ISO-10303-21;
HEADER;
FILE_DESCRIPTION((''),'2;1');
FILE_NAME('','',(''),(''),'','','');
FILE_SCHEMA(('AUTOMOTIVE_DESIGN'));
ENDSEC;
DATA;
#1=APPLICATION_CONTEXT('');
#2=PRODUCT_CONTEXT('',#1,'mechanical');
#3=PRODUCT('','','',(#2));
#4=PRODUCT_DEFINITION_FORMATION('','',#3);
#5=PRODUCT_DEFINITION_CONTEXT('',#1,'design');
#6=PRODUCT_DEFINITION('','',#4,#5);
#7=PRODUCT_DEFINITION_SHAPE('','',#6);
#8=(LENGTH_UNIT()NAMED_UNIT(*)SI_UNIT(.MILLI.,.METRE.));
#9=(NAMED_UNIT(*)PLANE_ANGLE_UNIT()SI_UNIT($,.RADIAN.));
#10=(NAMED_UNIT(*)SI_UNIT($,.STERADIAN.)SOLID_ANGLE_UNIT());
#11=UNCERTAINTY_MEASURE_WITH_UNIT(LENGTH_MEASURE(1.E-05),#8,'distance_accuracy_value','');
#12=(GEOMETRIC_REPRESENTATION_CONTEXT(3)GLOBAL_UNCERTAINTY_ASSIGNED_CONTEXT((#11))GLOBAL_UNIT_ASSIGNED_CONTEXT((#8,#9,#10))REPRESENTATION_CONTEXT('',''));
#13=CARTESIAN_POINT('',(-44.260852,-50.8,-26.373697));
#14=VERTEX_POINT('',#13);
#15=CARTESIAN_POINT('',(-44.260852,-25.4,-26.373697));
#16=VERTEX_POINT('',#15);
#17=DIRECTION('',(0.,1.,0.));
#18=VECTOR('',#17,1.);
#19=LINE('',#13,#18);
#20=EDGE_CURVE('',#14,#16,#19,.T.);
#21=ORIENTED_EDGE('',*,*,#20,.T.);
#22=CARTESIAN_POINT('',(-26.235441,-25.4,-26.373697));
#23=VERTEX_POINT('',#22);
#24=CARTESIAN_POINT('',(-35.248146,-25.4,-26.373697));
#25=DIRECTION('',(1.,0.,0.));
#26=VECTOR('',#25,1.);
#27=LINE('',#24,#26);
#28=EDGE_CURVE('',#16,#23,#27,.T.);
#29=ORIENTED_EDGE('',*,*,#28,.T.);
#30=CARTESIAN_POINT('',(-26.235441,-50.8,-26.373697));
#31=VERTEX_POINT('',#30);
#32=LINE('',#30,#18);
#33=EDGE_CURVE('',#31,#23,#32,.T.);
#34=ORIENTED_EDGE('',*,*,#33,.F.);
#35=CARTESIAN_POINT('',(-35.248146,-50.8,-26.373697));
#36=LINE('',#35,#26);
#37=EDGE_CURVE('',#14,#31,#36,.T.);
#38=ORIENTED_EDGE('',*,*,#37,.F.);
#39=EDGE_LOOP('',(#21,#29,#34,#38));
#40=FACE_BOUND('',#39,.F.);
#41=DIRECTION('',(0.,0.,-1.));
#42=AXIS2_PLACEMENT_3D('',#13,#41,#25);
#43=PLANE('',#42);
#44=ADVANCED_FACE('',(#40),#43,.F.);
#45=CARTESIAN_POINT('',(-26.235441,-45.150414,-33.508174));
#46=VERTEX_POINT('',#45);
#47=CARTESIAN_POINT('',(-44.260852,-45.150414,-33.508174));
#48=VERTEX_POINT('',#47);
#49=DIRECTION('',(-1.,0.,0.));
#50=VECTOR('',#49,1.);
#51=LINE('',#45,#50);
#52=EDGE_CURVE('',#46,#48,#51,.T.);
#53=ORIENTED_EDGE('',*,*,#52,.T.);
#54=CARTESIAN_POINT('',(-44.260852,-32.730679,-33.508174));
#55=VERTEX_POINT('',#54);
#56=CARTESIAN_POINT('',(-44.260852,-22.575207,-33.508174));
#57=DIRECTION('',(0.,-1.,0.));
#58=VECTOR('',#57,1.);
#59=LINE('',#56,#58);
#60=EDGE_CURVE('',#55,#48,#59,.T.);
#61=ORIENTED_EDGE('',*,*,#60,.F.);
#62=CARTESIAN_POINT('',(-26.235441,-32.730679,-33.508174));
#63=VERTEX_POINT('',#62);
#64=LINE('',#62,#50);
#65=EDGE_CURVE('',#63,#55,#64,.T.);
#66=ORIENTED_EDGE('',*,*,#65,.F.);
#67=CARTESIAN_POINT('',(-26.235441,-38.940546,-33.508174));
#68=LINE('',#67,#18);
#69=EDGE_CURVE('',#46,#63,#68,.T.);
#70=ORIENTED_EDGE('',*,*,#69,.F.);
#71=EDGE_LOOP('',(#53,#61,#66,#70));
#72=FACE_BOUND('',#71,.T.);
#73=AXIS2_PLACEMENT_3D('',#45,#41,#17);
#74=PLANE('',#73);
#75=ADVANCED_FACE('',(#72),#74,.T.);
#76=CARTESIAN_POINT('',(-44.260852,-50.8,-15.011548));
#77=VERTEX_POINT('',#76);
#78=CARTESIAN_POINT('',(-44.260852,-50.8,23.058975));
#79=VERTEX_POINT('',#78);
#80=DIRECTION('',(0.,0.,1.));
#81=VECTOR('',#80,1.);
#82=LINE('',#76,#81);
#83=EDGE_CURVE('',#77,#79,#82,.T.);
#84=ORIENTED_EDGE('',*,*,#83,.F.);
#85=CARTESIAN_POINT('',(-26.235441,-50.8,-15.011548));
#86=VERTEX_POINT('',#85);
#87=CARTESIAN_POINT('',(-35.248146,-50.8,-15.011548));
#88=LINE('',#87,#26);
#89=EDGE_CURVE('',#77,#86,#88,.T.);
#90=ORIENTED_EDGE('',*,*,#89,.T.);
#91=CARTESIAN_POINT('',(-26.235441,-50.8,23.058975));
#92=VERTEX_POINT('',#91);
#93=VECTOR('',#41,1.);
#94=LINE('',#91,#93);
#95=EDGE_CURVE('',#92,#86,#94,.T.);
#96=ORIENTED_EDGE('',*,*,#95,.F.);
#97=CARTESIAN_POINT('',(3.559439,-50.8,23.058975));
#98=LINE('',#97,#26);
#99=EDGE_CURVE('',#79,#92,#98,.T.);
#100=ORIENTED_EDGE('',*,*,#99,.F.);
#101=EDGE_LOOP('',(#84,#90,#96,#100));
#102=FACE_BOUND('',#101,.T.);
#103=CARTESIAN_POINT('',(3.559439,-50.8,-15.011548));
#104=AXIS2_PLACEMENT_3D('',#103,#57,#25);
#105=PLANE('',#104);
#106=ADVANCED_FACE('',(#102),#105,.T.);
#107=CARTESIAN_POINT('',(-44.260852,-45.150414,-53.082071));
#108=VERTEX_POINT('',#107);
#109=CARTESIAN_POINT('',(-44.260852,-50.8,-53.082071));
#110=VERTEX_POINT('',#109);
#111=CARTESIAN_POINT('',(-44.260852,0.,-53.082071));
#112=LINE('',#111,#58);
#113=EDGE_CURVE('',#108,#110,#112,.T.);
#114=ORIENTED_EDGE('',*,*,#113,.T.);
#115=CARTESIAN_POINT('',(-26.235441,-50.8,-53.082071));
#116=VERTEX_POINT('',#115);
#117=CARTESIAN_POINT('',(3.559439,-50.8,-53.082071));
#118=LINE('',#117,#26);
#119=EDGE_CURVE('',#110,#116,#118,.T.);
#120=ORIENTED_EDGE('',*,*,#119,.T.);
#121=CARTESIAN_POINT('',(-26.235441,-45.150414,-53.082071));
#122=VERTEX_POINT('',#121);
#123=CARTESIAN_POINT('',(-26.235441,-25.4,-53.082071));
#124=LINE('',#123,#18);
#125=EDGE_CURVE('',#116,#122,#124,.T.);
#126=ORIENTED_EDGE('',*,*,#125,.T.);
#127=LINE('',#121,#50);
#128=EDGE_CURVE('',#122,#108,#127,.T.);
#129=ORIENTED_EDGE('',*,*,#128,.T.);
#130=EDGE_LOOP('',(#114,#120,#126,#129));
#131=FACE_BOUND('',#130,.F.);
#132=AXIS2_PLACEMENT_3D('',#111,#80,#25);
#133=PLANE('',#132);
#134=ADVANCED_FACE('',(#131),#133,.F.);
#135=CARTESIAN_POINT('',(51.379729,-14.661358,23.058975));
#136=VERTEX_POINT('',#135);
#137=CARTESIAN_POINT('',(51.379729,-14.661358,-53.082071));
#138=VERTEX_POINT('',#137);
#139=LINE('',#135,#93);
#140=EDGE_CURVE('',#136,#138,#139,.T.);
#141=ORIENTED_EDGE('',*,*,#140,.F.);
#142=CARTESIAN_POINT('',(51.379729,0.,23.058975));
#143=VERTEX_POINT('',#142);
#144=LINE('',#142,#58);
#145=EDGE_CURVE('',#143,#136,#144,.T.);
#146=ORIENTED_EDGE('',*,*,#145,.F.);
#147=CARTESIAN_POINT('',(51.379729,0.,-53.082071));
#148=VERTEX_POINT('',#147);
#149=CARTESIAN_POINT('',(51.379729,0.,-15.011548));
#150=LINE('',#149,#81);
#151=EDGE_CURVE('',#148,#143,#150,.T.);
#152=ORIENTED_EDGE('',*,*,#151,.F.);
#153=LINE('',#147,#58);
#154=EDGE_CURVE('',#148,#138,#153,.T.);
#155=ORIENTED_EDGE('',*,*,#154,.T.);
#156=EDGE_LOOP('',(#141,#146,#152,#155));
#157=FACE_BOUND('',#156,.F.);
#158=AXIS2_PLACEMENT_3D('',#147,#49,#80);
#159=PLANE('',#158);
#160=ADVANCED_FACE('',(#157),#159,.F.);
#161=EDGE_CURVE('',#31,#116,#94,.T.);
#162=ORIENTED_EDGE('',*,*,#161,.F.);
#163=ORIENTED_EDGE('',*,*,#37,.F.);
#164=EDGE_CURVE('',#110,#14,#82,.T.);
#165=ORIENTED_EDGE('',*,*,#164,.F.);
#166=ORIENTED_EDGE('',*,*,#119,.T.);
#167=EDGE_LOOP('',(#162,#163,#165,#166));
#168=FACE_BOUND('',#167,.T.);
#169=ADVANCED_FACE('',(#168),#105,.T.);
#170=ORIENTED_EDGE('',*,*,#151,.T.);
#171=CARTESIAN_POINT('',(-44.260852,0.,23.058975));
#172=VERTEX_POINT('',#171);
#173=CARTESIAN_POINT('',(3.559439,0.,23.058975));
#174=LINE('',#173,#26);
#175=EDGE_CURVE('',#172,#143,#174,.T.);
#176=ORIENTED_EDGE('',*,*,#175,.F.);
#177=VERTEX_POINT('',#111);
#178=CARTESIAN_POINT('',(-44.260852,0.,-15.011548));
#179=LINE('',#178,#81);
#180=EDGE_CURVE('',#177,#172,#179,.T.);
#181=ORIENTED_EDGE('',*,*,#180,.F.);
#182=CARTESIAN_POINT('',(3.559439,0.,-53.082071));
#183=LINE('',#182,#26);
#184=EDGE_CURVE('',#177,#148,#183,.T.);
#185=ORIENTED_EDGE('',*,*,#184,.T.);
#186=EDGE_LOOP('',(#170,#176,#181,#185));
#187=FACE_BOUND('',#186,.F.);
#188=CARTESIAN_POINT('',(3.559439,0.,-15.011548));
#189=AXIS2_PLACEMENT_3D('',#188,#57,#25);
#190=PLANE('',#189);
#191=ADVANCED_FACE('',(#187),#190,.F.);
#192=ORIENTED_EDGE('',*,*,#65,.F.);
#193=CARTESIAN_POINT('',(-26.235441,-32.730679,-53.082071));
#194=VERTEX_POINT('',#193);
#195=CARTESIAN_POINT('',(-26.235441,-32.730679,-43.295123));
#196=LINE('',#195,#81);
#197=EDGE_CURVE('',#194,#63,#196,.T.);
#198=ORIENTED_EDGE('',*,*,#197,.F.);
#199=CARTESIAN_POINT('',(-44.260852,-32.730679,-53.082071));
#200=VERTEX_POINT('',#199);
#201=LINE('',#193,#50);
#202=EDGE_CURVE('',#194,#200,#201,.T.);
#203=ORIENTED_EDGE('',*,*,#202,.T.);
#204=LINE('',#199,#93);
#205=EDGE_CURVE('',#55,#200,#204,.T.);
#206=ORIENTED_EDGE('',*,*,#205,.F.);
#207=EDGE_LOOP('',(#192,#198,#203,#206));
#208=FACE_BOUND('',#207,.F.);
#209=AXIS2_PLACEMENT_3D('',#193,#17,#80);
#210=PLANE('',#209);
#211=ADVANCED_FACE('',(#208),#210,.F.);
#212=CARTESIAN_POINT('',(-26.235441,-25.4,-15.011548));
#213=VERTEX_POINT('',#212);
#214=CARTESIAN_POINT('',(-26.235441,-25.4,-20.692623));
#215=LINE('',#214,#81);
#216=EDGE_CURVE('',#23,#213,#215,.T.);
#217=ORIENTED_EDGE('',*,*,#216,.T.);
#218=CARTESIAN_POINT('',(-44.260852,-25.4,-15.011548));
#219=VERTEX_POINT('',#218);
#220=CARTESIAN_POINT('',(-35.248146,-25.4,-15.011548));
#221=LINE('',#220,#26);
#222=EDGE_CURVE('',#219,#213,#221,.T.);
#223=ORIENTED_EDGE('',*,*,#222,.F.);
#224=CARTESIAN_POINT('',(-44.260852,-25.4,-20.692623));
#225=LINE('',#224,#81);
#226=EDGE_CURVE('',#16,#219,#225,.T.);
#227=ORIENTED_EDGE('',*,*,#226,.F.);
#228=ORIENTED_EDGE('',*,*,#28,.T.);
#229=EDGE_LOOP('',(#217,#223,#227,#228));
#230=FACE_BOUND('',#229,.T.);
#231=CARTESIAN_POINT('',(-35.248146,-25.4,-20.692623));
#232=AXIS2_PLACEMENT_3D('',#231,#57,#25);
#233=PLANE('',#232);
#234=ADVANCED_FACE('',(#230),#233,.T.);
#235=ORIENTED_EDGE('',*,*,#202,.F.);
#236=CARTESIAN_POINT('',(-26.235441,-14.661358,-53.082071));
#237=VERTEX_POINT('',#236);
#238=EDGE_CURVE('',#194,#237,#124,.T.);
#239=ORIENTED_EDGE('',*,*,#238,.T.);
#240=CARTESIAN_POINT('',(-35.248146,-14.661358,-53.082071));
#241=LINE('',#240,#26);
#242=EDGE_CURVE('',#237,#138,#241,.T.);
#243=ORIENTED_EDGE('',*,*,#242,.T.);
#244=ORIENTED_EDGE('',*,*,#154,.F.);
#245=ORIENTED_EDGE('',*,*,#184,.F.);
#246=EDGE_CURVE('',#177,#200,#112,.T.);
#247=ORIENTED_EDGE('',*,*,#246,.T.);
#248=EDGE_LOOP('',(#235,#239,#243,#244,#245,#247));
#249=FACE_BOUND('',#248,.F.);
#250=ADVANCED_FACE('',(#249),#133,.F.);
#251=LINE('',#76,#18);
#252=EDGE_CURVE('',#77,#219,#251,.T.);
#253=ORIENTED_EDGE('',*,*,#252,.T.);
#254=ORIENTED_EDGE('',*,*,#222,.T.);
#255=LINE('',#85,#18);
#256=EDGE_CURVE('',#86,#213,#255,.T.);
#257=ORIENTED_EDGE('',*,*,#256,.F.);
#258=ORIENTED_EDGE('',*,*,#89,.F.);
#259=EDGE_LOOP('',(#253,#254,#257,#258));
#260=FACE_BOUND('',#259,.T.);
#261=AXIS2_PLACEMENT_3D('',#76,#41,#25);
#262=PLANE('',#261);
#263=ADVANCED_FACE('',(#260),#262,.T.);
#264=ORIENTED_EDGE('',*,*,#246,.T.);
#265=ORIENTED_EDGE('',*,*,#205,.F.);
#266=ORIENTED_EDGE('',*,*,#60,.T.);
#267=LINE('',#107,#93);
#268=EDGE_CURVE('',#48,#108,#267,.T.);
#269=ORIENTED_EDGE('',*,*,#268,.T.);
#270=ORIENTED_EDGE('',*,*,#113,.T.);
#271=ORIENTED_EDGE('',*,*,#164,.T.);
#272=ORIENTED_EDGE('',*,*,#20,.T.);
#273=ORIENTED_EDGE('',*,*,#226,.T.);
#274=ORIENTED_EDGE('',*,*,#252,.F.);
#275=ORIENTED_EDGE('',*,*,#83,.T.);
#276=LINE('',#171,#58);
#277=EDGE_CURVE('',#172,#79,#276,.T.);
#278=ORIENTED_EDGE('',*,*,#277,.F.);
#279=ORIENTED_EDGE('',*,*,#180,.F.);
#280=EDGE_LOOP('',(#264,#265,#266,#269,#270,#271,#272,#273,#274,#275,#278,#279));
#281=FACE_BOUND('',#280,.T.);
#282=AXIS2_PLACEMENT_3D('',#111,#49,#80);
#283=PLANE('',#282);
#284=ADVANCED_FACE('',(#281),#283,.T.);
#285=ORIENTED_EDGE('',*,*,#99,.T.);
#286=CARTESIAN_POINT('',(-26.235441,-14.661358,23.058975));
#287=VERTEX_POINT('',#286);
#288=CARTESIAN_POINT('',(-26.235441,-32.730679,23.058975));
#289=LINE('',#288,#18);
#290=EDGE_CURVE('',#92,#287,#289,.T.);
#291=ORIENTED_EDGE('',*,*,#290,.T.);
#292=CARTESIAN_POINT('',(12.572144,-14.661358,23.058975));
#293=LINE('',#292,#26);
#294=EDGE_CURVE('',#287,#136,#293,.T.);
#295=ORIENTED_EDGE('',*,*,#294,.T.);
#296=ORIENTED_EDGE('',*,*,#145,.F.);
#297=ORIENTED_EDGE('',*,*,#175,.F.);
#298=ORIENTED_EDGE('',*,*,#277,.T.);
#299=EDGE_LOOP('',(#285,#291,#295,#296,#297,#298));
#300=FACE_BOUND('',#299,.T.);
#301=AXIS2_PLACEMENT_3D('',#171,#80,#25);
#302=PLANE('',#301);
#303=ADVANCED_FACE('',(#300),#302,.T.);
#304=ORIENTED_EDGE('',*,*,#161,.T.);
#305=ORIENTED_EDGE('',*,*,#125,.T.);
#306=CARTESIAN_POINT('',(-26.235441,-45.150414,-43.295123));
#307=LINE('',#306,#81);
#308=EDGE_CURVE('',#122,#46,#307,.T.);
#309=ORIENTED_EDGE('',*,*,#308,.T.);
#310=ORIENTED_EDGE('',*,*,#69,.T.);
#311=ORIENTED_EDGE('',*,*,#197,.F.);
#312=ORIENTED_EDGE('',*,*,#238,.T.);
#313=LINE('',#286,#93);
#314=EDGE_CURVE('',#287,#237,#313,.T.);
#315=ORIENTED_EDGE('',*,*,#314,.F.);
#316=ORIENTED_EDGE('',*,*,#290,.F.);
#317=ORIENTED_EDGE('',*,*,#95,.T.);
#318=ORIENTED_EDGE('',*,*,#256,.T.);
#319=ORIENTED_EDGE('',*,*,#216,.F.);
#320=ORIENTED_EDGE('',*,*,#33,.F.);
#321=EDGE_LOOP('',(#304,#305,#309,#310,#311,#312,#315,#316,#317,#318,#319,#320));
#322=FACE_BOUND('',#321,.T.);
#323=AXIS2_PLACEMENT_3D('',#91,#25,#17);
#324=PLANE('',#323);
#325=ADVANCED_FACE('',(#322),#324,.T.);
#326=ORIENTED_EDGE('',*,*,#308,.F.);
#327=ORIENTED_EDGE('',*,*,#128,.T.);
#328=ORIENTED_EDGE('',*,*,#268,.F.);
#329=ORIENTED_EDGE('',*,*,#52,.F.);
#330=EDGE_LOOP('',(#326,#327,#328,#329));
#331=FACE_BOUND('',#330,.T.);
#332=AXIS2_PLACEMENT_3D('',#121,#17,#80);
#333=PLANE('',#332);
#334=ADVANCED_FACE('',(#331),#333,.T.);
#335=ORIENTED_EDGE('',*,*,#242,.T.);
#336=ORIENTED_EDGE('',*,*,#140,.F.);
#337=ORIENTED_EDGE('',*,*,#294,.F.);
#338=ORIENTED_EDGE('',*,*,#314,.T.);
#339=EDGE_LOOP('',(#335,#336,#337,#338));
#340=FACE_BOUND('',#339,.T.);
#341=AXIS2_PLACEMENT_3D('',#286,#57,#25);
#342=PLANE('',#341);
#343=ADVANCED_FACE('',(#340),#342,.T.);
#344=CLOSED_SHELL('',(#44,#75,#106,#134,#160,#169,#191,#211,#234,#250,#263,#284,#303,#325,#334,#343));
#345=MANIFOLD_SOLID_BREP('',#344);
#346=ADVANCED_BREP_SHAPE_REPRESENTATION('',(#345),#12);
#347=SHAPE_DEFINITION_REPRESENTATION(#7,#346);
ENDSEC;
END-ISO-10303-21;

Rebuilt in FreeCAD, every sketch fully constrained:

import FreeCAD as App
import Part
import Sketcher

V = App.Vector
Q = App.Units.Quantity


def add_polygon(sketch, points):
    """Adds a closed chain of lines whose ends are joined by coincident constraints."""
    first, n = sketch.GeometryCount, len(points)
    for a, b in zip(points, points[1:] + points[:1]):
        sketch.addGeometry(Part.LineSegment(App.Vector(*a, 0), App.Vector(*b, 0)), False)
    for i in range(n):
        sketch.addConstraint(Sketcher.Constraint("Coincident", first + i, 2, first + (i + 1) % n, 1))

doc = App.newDocument("Part")
body = doc.addObject("PartDesign::Body", "Body")

# Sketch on XZ plane
sketch1 = body.newObject("Sketcher::SketchObject", "Sketch")
sketch1.AttachmentSupport = (doc.getObject("XZ_Plane"), [""])
sketch1.MapMode = "FlatFace"
add_polygon(sketch1, [(-44, 23), (-44, -53), (51, -53), (51, 23)])  # lines 0-3
sketch1.addConstraint([
    Sketcher.Constraint("Vertical", 0),
    Sketcher.Constraint("Horizontal", 1),
    Sketcher.Constraint("Vertical", 2),
    Sketcher.Constraint("Horizontal", 3),
    Sketcher.Constraint("DistanceX", 1, 1, 1, 2, Q("95.640581 mm")),
    Sketcher.Constraint("DistanceY", 0, 2, 0, 1, Q("76.141046 mm")),
    Sketcher.Constraint("DistanceY", 0, 2, -1, 1, Q("53.082071 mm")),
    Sketcher.Constraint("DistanceX", -1, 1, 1, 2, Q("51.379729 mm")),
])
pad1 = body.newObject("PartDesign::Pad", "Pad")
pad1.Profile = sketch1
pad1.Length = Q("2 in")

# Sketch on XY plane
sketch2 = body.newObject("Sketcher::SketchObject", "Sketch001")
sketch2.AttachmentSupport = (doc.getObject("XY_Plane"), [""])
sketch2.MapMode = "FlatFace"
sketch2.AttachmentOffset = App.Placement(V(0, 0, 23.058975), App.Rotation())
add_polygon(sketch2, [(-26, -15), (-26, -51), (51, -51), (51, -15)])  # lines 0-3
sketch2.addConstraint([
    Sketcher.Constraint("Vertical", 0),
    Sketcher.Constraint("Horizontal", 1),
    Sketcher.Constraint("Vertical", 2),
    Sketcher.Constraint("Horizontal", 3),
    Sketcher.Constraint("DistanceY", 0, 2, -1, 1, Q("2 in")),
    Sketcher.Constraint("DistanceX", 1, 1, 1, 2, Q("77.61517 mm")),
    Sketcher.Constraint("DistanceY", 0, 2, 0, 1, Q("36.138642 mm")),
    Sketcher.Constraint("DistanceX", 0, 2, -1, 1, Q("26.235441 mm")),
])
pocket1 = body.newObject("PartDesign::Pocket", "Pocket")
pocket1.Profile = sketch2
pocket1.Type = "ThroughAll"

# Sketch on XZ plane
sketch3 = body.newObject("Sketcher::SketchObject", "Sketch002")
sketch3.AttachmentSupport = (doc.getObject("XZ_Plane"), [""])
sketch3.MapMode = "FlatFace"
sketch3.AttachmentOffset = App.Placement(V(0, 0, 2 * 25.4), App.Rotation())
add_polygon(sketch3, [(-44, -15), (-44, -26), (-26, -26), (-26, -15)])  # lines 0-3
sketch3.addConstraint([
    Sketcher.Constraint("Vertical", 0),
    Sketcher.Constraint("Horizontal", 1),
    Sketcher.Constraint("Vertical", 2),
    Sketcher.Constraint("Horizontal", 3),
    Sketcher.Constraint("DistanceX", 1, 1, 1, 2, Q("18.025411 mm")),
    Sketcher.Constraint("DistanceY", 0, 2, 0, 1, Q("11.362149 mm")),
    Sketcher.Constraint("DistanceX", 1, 2, -1, 1, Q("26.235441 mm")),
    Sketcher.Constraint("DistanceY", 2, 2, -1, 1, Q("15.011548 mm")),
])
pocket2 = body.newObject("PartDesign::Pocket", "Pocket001")
pocket2.Profile = sketch3
pocket2.Length = Q("1 in")

# Sketch on YZ plane
sketch4 = body.newObject("Sketcher::SketchObject", "Sketch003")
sketch4.AttachmentSupport = (doc.getObject("YZ_Plane"), [""])
sketch4.MapMode = "FlatFace"
sketch4.AttachmentOffset = App.Placement(V(0, 0, -26.235441), App.Rotation())
add_polygon(sketch4, [(-45, -34), (-45, -53), (-33, -53), (-33, -34)])  # lines 0-3
sketch4.addConstraint([
    Sketcher.Constraint("Vertical", 0),
    Sketcher.Constraint("Horizontal", 1),
    Sketcher.Constraint("Vertical", 2),
    Sketcher.Constraint("Horizontal", 3),
    Sketcher.Constraint("DistanceX", 1, 1, 1, 2, Q("12.419735 mm")),
    Sketcher.Constraint("DistanceY", 0, 2, 0, 1, Q("19.573897 mm")),
    Sketcher.Constraint("DistanceY", 0, 2, -1, 1, Q("53.082071 mm")),
    Sketcher.Constraint("DistanceX", 1, 2, -1, 1, Q("32.730679 mm")),
])
pocket3 = body.newObject("PartDesign::Pocket", "Pocket002")
pocket3.Profile = sketch4
pocket3.Length = Q("1 in")

doc.recompute()
